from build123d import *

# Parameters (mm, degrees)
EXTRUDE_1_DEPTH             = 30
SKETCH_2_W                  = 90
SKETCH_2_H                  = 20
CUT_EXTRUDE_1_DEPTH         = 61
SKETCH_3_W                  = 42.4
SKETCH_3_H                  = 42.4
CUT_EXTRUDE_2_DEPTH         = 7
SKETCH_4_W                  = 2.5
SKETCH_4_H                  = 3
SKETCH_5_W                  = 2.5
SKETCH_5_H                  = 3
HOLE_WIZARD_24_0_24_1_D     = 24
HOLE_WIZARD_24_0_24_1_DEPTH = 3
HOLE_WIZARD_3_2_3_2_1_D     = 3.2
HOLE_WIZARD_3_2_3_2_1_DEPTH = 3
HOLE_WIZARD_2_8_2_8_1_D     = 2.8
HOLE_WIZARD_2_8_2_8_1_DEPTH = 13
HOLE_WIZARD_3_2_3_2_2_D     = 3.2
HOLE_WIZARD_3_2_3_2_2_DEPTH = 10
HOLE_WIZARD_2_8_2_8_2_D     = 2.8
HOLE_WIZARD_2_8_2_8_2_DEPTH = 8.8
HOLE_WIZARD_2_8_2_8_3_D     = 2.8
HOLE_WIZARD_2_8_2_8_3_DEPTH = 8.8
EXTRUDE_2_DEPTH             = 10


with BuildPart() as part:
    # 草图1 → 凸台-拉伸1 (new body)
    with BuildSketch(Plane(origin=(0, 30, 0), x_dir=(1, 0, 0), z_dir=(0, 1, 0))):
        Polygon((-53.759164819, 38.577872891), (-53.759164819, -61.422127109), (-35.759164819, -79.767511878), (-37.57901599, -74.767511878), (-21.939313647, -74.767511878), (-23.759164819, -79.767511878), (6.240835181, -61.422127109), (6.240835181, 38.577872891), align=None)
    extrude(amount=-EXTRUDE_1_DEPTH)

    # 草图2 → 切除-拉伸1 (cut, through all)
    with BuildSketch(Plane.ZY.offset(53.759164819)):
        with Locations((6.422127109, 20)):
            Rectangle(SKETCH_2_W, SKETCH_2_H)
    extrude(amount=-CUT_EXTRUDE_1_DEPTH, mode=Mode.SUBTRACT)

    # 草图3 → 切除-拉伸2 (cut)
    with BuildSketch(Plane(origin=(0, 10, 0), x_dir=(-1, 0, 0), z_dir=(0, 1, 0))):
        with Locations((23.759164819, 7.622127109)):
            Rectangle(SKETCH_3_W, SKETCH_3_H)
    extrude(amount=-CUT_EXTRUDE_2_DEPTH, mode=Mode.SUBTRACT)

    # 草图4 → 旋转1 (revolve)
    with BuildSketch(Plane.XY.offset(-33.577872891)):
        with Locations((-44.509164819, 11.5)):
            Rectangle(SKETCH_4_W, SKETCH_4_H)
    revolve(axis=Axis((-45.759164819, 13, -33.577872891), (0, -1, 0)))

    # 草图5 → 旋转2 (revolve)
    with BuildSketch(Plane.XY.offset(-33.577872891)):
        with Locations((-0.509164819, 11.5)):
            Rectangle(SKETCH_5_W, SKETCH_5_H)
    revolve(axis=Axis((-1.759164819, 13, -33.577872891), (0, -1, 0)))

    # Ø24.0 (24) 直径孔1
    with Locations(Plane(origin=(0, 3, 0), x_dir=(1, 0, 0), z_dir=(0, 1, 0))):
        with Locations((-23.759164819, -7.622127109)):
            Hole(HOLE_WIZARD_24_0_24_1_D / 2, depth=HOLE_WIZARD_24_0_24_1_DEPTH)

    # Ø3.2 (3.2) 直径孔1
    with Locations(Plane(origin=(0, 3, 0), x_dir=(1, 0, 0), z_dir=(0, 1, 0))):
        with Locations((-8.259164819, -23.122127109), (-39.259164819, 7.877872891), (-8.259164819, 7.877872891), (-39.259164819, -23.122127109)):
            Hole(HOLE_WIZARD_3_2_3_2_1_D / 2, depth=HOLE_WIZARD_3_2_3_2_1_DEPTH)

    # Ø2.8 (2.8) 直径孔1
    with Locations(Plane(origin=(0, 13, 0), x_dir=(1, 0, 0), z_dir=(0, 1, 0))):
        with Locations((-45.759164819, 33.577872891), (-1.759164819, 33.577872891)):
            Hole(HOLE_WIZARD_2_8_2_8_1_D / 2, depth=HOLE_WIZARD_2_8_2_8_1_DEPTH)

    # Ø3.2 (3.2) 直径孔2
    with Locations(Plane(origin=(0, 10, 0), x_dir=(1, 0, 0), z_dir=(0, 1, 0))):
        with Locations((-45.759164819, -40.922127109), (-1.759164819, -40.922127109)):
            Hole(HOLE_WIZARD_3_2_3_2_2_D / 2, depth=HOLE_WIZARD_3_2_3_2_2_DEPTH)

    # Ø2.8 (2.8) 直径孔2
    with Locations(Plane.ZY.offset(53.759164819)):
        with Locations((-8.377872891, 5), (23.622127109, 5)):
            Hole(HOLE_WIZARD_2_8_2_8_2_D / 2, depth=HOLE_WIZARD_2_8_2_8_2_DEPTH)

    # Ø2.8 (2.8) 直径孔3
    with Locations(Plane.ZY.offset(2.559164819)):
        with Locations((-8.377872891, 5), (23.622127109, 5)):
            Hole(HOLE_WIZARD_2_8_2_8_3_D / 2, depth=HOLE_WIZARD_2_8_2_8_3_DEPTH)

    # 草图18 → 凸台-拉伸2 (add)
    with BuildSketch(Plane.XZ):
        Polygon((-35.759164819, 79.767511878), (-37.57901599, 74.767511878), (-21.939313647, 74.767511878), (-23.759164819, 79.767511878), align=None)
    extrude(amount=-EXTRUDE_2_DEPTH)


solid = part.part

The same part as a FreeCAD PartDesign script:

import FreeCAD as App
import Part
import Sketcher
Q = App.Units.Quantity

doc = App.newDocument("Part")
body = doc.addObject("PartDesign::Body", "Body")

# Sketch on XZ plane
sketch1 = body.newObject("Sketcher::SketchObject", "Sketch")
sketch1.AttachmentSupport = (doc.getObject("XZ_Plane"), [""])
sketch1.MapMode = "FlatFace"
sketch1.AttachmentOffset = App.Placement(App.Vector(0, 0, -30), App.Rotation())
sketch1.addGeometry(Part.LineSegment(App.Vector(-54, -39, 0), App.Vector(-54, 61, 0)), False)
sketch1.addGeometry(Part.LineSegment(App.Vector(-54, 61, 0), App.Vector(-36, 80, 0)), False)
sketch1.addGeometry(Part.LineSegment(App.Vector(-36, 80, 0), App.Vector(-38, 75, 0)), False)
sketch1.addGeometry(Part.LineSegment(App.Vector(-38, 75, 0), App.Vector(-22, 75, 0)), False)
sketch1.addGeometry(Part.LineSegment(App.Vector(-22, 75, 0), App.Vector(-24, 80, 0)), False)
sketch1.addGeometry(Part.LineSegment(App.Vector(-24, 80, 0), App.Vector(6, 61, 0)), False)
sketch1.addGeometry(Part.LineSegment(App.Vector(6, 61, 0), App.Vector(6, -39, 0)), False)
sketch1.addGeometry(Part.LineSegment(App.Vector(6, -39, 0), App.Vector(-54, -39, 0)), False)
sketch1.addConstraint(Sketcher.Constraint("Coincident", 0, 2, 1, 1))
sketch1.addConstraint(Sketcher.Constraint("Coincident", 1, 2, 2, 1))
sketch1.addConstraint(Sketcher.Constraint("Coincident", 2, 2, 3, 1))
sketch1.addConstraint(Sketcher.Constraint("Coincident", 3, 2, 4, 1))
sketch1.addConstraint(Sketcher.Constraint("Coincident", 4, 2, 5, 1))
sketch1.addConstraint(Sketcher.Constraint("Coincident", 5, 2, 6, 1))
sketch1.addConstraint(Sketcher.Constraint("Coincident", 6, 2, 7, 1))
sketch1.addConstraint(Sketcher.Constraint("Coincident", 7, 2, 0, 1))
sketch1.addConstraint(Sketcher.Constraint("Vertical", 0))
sketch1.addConstraint(Sketcher.Constraint("Horizontal", 3))
sketch1.addConstraint(Sketcher.Constraint("Vertical", 6))
sketch1.addConstraint(Sketcher.Constraint("Horizontal", 7))
sketch1.addConstraint(Sketcher.Constraint("Horizontal", 1, 2, 4, 2))
sketch1.addConstraint(Sketcher.Constraint("Horizontal", 0, 2, 5, 2))
sketch1.addConstraint(Sketcher.Constraint("Equal", 2, 4))
sketch1.addConstraint(Sketcher.Constraint("DistanceX", 7, 2, 7, 1, 60.0))
sketch1.addConstraint(Sketcher.Constraint("DistanceY", 0, 1, 0, 2, 100.0))
sketch1.addConstraint(Sketcher.Constraint("Angle", 2, Q("-110 deg")))
sketch1.addConstraint(Sketcher.Constraint("DistanceX", 0, 2, 1, 2, 18.0))
sketch1.addConstraint(Sketcher.Constraint("DistanceY", 2, 2, 1, 2, 5.0))
sketch1.addConstraint(Sketcher.Constraint("DistanceX", 1, 2, 4, 2, 12.0))
sketch1.addConstraint(Sketcher.Constraint("Distance", 1, 25.701228))
sketch1.addConstraint(Sketcher.Constraint("DistanceY", -1, 1, 1, 2, 79.767512))
sketch1.addConstraint(Sketcher.Constraint("DistanceX", 0, 2, -1, 1, 53.759165))
pad1 = body.newObject("PartDesign::Pad", "Pad")
pad1.Profile = sketch1
pad1.Length = 30

# Sketch on YZ plane
sketch2 = body.newObject("Sketcher::SketchObject", "Sketch001")
sketch2.AttachmentSupport = (doc.getObject("YZ_Plane"), [""])
sketch2.MapMode = "FlatFace"
sketch2.AttachmentOffset = App.Placement(App.Vector(0, 0, -53.759165), App.Rotation())
sketch2.addGeometry(Part.LineSegment(App.Vector(30, -39, 0), App.Vector(10, -39, 0)), False)
sketch2.addGeometry(Part.LineSegment(App.Vector(10, -39, 0), App.Vector(10, 51, 0)), False)
sketch2.addGeometry(Part.LineSegment(App.Vector(10, 51, 0), App.Vector(30, 51, 0)), False)
sketch2.addGeometry(Part.LineSegment(App.Vector(30, 51, 0), App.Vector(30, -39, 0)), False)
sketch2.addConstraint(Sketcher.Constraint("Coincident", 0, 2, 1, 1))
sketch2.addConstraint(Sketcher.Constraint("Coincident", 1, 2, 2, 1))
sketch2.addConstraint(Sketcher.Constraint("Coincident", 2, 2, 3, 1))
sketch2.addConstraint(Sketcher.Constraint("Coincident", 3, 2, 0, 1))
sketch2.addConstraint(Sketcher.Constraint("Horizontal", 0))
sketch2.addConstraint(Sketcher.Constraint("Vertical", 1))
sketch2.addConstraint(Sketcher.Constraint("Horizontal", 2))
sketch2.addConstraint(Sketcher.Constraint("Vertical", 3))
sketch2.addConstraint(Sketcher.Constraint("DistanceX", 0, 2, 0, 1, 20.0))
sketch2.addConstraint(Sketcher.Constraint("DistanceY", 1, 1, 1, 2, 90.0))
sketch2.addConstraint(Sketcher.Constraint("DistanceX", -1, 1, 0, 2, 10.0))
sketch2.addConstraint(Sketcher.Constraint("DistanceY", 0, 2, -1, 1, 38.577873))
pocket1 = body.newObject("PartDesign::Pocket", "Pocket")
pocket1.Profile = sketch2
pocket1.Type = "ThroughAll"
pocket1.Reversed = True

# Sketch on XZ plane
sketch3 = body.newObject("Sketcher::SketchObject", "Sketch002")
sketch3.AttachmentSupport = (doc.getObject("XZ_Plane"), [""])
sketch3.MapMode = "FlatFace"
sketch3.AttachmentOffset = App.Placement(App.Vector(0, 0, -10), App.Rotation())
sketch3.addGeometry(Part.LineSegment(App.Vector(-3, 29, 0), App.Vector(-3, -14, 0)), False)
sketch3.addGeometry(Part.LineSegment(App.Vector(-3, -14, 0), App.Vector(-45, -14, 0)), False)
sketch3.addGeometry(Part.LineSegment(App.Vector(-45, -14, 0), App.Vector(-45, 29, 0)), False)
sketch3.addGeometry(Part.LineSegment(App.Vector(-45, 29, 0), App.Vector(-3, 29, 0)), False)
sketch3.addConstraint(Sketcher.Constraint("Coincident", 0, 2, 1, 1))
sketch3.addConstraint(Sketcher.Constraint("Coincident", 1, 2, 2, 1))
sketch3.addConstraint(Sketcher.Constraint("Coincident", 2, 2, 3, 1))
sketch3.addConstraint(Sketcher.Constraint("Coincident", 3, 2, 0, 1))
sketch3.addConstraint(Sketcher.Constraint("Vertical", 0))
sketch3.addConstraint(Sketcher.Constraint("Horizontal", 1))
sketch3.addConstraint(Sketcher.Constraint("Vertical", 2))
sketch3.addConstraint(Sketcher.Constraint("Horizontal", 3))
sketch3.addConstraint(Sketcher.Constraint("Equal", 3, 0))
sketch3.addConstraint(Sketcher.Constraint("DistanceX", 1, 2, 1, 1, 42.4))
sketch3.addConstraint(Sketcher.Constraint("DistanceX", 0, 2, -1, 1, 2.559165))
sketch3.addConstraint(Sketcher.Constraint("DistanceY", 0, 2, -1, 1, 13.577873))
pocket2 = body.newObject("PartDesign::Pocket", "Pocket001")
pocket2.Profile = sketch3
pocket2.Length = 7
pocket2.Reversed = True

# Sketch on XY plane
sketch4 = body.newObject("Sketcher::SketchObject", "Sketch003")
sketch4.AttachmentSupport = (doc.getObject("XY_Plane"), [""])
sketch4.MapMode = "FlatFace"
sketch4.AttachmentOffset = App.Placement(App.Vector(0, 0, -33.577873), App.Rotation())
sketch4.addGeometry(Part.LineSegment(App.Vector(-45.8, 13, 0), App.Vector(-45.8, 10, 0)), False)
sketch4.addGeometry(Part.LineSegment(App.Vector(-45.8, 10, 0), App.Vector(-43.3, 10, 0)), False)
sketch4.addGeometry(Part.LineSegment(App.Vector(-43.3, 10, 0), App.Vector(-43.3, 13, 0)), False)
sketch4.addGeometry(Part.LineSegment(App.Vector(-43.3, 13, 0), App.Vector(-45.8, 13, 0)), False)
sketch4.addGeometry(Part.LineSegment(App.Vector(-45.8, 13, 0), App.Vector(-45.8, 10, 0)), True)  # axis
sketch4.addConstraint(Sketcher.Constraint("Coincident", 0, 2, 1, 1))
sketch4.addConstraint(Sketcher.Constraint("Coincident", 1, 2, 2, 1))
sketch4.addConstraint(Sketcher.Constraint("Coincident", 2, 2, 3, 1))
sketch4.addConstraint(Sketcher.Constraint("Coincident", 3, 2, 0, 1))
sketch4.addConstraint(Sketcher.Constraint("Vertical", 0))
sketch4.addConstraint(Sketcher.Constraint("Horizontal", 1))
sketch4.addConstraint(Sketcher.Constraint("Vertical", 2))
sketch4.addConstraint(Sketcher.Constraint("Horizontal", 3))
sketch4.addConstraint(Sketcher.Constraint("Vertical", 4))
sketch4.addConstraint(Sketcher.Constraint("Coincident", 4, 1, 3, 2))
sketch4.addConstraint(Sketcher.Constraint("Horizontal", 1, 2, 4, 2))
sketch4.addConstraint(Sketcher.Constraint("DistanceY", 0, 2, 0, 1, 3.0))
sketch4.addConstraint(Sketcher.Constraint("DistanceX", 1, 1, 1, 2, 2.5))
sketch4.addConstraint(Sketcher.Constraint("DistanceY", -1, 1, 0, 2, 10.0))
sketch4.addConstraint(Sketcher.Constraint("DistanceX", 0, 2, -1, 1, 45.759165))
revolution = body.newObject("PartDesign::Revolution", "Revolution")
revolution.Profile = sketch4
revolution.ReferenceAxis = (sketch4, ["Axis0"])
revolution.Angle = 360

# Sketch on XY plane
sketch5 = body.newObject("Sketcher::SketchObject", "Sketch004")
sketch5.AttachmentSupport = (doc.getObject("XY_Plane"), [""])
sketch5.MapMode = "FlatFace"
sketch5.AttachmentOffset = App.Placement(App.Vector(0, 0, -33.577873), App.Rotation())
sketch5.addGeometry(Part.LineSegment(App.Vector(-1.8, 13, 0), App.Vector(-1.8, 10, 0)), False)
sketch5.addGeometry(Part.LineSegment(App.Vector(-1.8, 10, 0), App.Vector(0.7, 10, 0)), False)
sketch5.addGeometry(Part.LineSegment(App.Vector(0.7, 10, 0), App.Vector(0.7, 13, 0)), False)
sketch5.addGeometry(Part.LineSegment(App.Vector(0.7, 13, 0), App.Vector(-1.8, 13, 0)), False)
sketch5.addGeometry(Part.LineSegment(App.Vector(-1.8, 13, 0), App.Vector(-1.8, 10, 0)), True)  # axis
sketch5.addConstraint(Sketcher.Constraint("Coincident", 0, 2, 1, 1))
sketch5.addConstraint(Sketcher.Constraint("Coincident", 1, 2, 2, 1))
sketch5.addConstraint(Sketcher.Constraint("Coincident", 2, 2, 3, 1))
sketch5.addConstraint(Sketcher.Constraint("Coincident", 3, 2, 0, 1))
sketch5.addConstraint(Sketcher.Constraint("Vertical", 0))
sketch5.addConstraint(Sketcher.Constraint("Horizontal", 1))
sketch5.addConstraint(Sketcher.Constraint("Vertical", 2))
sketch5.addConstraint(Sketcher.Constraint("Horizontal", 3))
sketch5.addConstraint(Sketcher.Constraint("Vertical", 4))
sketch5.addConstraint(Sketcher.Constraint("Coincident", 4, 1, 3, 2))
sketch5.addConstraint(Sketcher.Constraint("Horizontal", 1, 2, 4, 2))
sketch5.addConstraint(Sketcher.Constraint("DistanceY", 0, 2, 0, 1, 3.0))
sketch5.addConstraint(Sketcher.Constraint("DistanceX", 1, 1, 1, 2, 2.5))
sketch5.addConstraint(Sketcher.Constraint("DistanceY", -1, 1, 0, 2, 10.0))
sketch5.addConstraint(Sketcher.Constraint("DistanceX", 0, 2, -1, 1, 1.759165))
revolution2 = body.newObject("PartDesign::Revolution", "Revolution001")
revolution2.Profile = sketch5
revolution2.ReferenceAxis = (sketch5, ["Axis0"])
revolution2.Angle = 360

# Sketch on XZ plane
sketch6 = body.newObject("Sketcher::SketchObject", "Sketch005")
sketch6.AttachmentSupport = (doc.getObject("XZ_Plane"), [""])
sketch6.MapMode = "FlatFace"
sketch6.AttachmentOffset = App.Placement(App.Vector(0, 0, -3), App.Rotation())
sketch6.addGeometry(Part.Circle(App.Vector(-24, 8, 0), App.Vector(0, 0, 1), 12), False)
sketch6.addConstraint(Sketcher.Constraint("Diameter", 0, 24.0))
sketch6.addConstraint(Sketcher.Constraint("DistanceX", 0, 3, -1, 1, 23.759165))
sketch6.addConstraint(Sketcher.Constraint("DistanceY", -1, 1, 0, 3, 7.622127))
doc.recompute()
hole = body.newObject("PartDesign::Hole", "Hole")
hole.Profile = sketch6
hole.ThreadType = "None"
hole.Diameter = 24
hole.DepthType = "Dimension"
hole.Depth = 3
hole.DrillPoint = "Flat"
hole.Reversed = True

# Sketch on XZ plane
sketch7 = body.newObject("Sketcher::SketchObject", "Sketch006")
sketch7.AttachmentSupport = (doc.getObject("XZ_Plane"), [""])
sketch7.MapMode = "FlatFace"
sketch7.AttachmentOffset = App.Placement(App.Vector(0, 0, -3), App.Rotation())
sketch7.addGeometry(Part.Circle(App.Vector(-8.3, 23.1, 0), App.Vector(0, 0, 1), 1.6), False)
sketch7.addGeometry(Part.Circle(App.Vector(-39.3, -7.9, 0), App.Vector(0, 0, 1), 1.6), False)
sketch7.addGeometry(Part.Circle(App.Vector(-8.3, -7.9, 0), App.Vector(0, 0, 1), 1.6), False)
sketch7.addGeometry(Part.Circle(App.Vector(-39.3, 23.1, 0), App.Vector(0, 0, 1), 1.6), False)
sketch7.addConstraint(Sketcher.Constraint("Equal", 0, 1))
sketch7.addConstraint(Sketcher.Constraint("Equal", 1, 2))
sketch7.addConstraint(Sketcher.Constraint("Equal", 2, 3))
sketch7.addConstraint(Sketcher.Constraint("Horizontal", 1, 3, 2, 3))
sketch7.addConstraint(Sketcher.Constraint("Horizontal", 0, 3, 3, 3))
sketch7.addConstraint(Sketcher.Constraint("Vertical", 0, 3, 2, 3))
sketch7.addConstraint(Sketcher.Constraint("Vertical", 1, 3, 3, 3))
sketch7.addConstraint(Sketcher.Constraint("Diameter", 0, 3.2))
sketch7.addConstraint(Sketcher.Constraint("DistanceX", 1, 3, 0, 3, 31.0))
sketch7.addConstraint(Sketcher.Constraint("DistanceY", 1, 3, 0, 3, 31.0))
sketch7.addConstraint(Sketcher.Constraint("DistanceX", 0, 3, -1, 1, 8.259165))
sketch7.addConstraint(Sketcher.Constraint("DistanceY", -1, 1, 0, 3, 23.122127))
doc.recompute()
hole2 = body.newObject("PartDesign::Hole", "Hole001")
hole2.Profile = sketch7
hole2.ThreadType = "None"
hole2.Diameter = 3.2
hole2.DepthType = "Dimension"
hole2.Depth = 3
hole2.DrillPoint = "Flat"
hole2.Reversed = True

# Sketch on XZ plane
sketch8 = body.newObject("Sketcher::SketchObject", "Sketch007")
sketch8.AttachmentSupport = (doc.getObject("XZ_Plane"), [""])
sketch8.MapMode = "FlatFace"
sketch8.AttachmentOffset = App.Placement(App.Vector(0, 0, -13), App.Rotation())
sketch8.addGeometry(Part.Circle(App.Vector(-45.8, -33.6, 0), App.Vector(0, 0, 1), 1.4), False)
sketch8.addGeometry(Part.Circle(App.Vector(-1.8, -33.6, 0), App.Vector(0, 0, 1), 1.4), False)
sketch8.addConstraint(Sketcher.Constraint("Equal", 0, 1))
sketch8.addConstraint(Sketcher.Constraint("Horizontal", 0, 3, 1, 3))
sketch8.addConstraint(Sketcher.Constraint("Diameter", 0, 2.8))
sketch8.addConstraint(Sketcher.Constraint("DistanceX", 0, 3, 1, 3, 44.0))
sketch8.addConstraint(Sketcher.Constraint("DistanceX", 0, 3, -1, 1, 45.759165))
sketch8.addConstraint(Sketcher.Constraint("DistanceY", 0, 3, -1, 1, 33.577873))
doc.recompute()
hole3 = body.newObject("PartDesign::Hole", "Hole002")
hole3.Profile = sketch8
hole3.ThreadType = "None"
hole3.Diameter = 2.8
hole3.DepthType = "Dimension"
hole3.Depth = 13
hole3.DrillPoint = "Flat"
hole3.Reversed = True

# Sketch on XZ plane
sketch9 = body.newObject("Sketcher::SketchObject", "Sketch008")
sketch9.AttachmentSupport = (doc.getObject("XZ_Plane"), [""])
sketch9.MapMode = "FlatFace"
sketch9.AttachmentOffset = App.Placement(App.Vector(0, 0, -10), App.Rotation())
sketch9.addGeometry(Part.Circle(App.Vector(-45.8, 40.9, 0), App.Vector(0, 0, 1), 1.6), False)
sketch9.addGeometry(Part.Circle(App.Vector(-1.8, 40.9, 0), App.Vector(0, 0, 1), 1.6), False)
sketch9.addConstraint(Sketcher.Constraint("Equal", 0, 1))
sketch9.addConstraint(Sketcher.Constraint("Horizontal", 0, 3, 1, 3))
sketch9.addConstraint(Sketcher.Constraint("Diameter", 0, 3.2))
sketch9.addConstraint(Sketcher.Constraint("DistanceX", 0, 3, 1, 3, 44.0))
sketch9.addConstraint(Sketcher.Constraint("DistanceX", 0, 3, -1, 1, 45.759165))
sketch9.addConstraint(Sketcher.Constraint("DistanceY", -1, 1, 0, 3, 40.922127))
doc.recompute()
hole4 = body.newObject("PartDesign::Hole", "Hole003")
hole4.Profile = sketch9
hole4.ThreadType = "None"
hole4.Diameter = 3.2
hole4.DepthType = "Dimension"
hole4.Depth = 10
hole4.DrillPoint = "Flat"
hole4.Reversed = True

# Sketch on YZ plane
sketch10 = body.newObject("Sketcher::SketchObject", "Sketch009")
sketch10.AttachmentSupport = (doc.getObject("YZ_Plane"), [""])
sketch10.MapMode = "FlatFace"
sketch10.AttachmentOffset = App.Placement(App.Vector(0, 0, -53.759165), App.Rotation())
sketch10.addGeometry(Part.Circle(App.Vector(5, -8.4, 0), App.Vector(0, 0, 1), 1.4), False)
sketch10.addGeometry(Part.Circle(App.Vector(5, 23.6, 0), App.Vector(0, 0, 1), 1.4), False)
sketch10.addConstraint(Sketcher.Constraint("Equal", 0, 1))
sketch10.addConstraint(Sketcher.Constraint("Vertical", 0, 3, 1, 3))
sketch10.addConstraint(Sketcher.Constraint("Diameter", 0, 2.8))
sketch10.addConstraint(Sketcher.Constraint("DistanceX", -1, 1, 0, 3, 5.0))
sketch10.addConstraint(Sketcher.Constraint("DistanceY", 0, 3, 1, 3, 32.0))
sketch10.addConstraint(Sketcher.Constraint("DistanceY", 0, 3, -1, 1, 8.377873))
doc.recompute()
hole5 = body.newObject("PartDesign::Hole", "Hole004")
hole5.Profile = sketch10
hole5.ThreadType = "None"
hole5.Diameter = 2.8
hole5.DepthType = "Dimension"
hole5.Depth = 8.8
hole5.DrillPoint = "Flat"
hole5.Reversed = True

# Sketch on YZ plane
sketch11 = body.newObject("Sketcher::SketchObject", "Sketch010")
sketch11.AttachmentSupport = (doc.getObject("YZ_Plane"), [""])
sketch11.MapMode = "FlatFace"
sketch11.AttachmentOffset = App.Placement(App.Vector(0, 0, -2.559165), App.Rotation())
sketch11.addGeometry(Part.Circle(App.Vector(5, -8.4, 0), App.Vector(0, 0, 1), 1.4), False)
sketch11.addGeometry(Part.Circle(App.Vector(5, 23.6, 0), App.Vector(0, 0, 1), 1.4), False)
sketch11.addConstraint(Sketcher.Constraint("Equal", 0, 1))
sketch11.addConstraint(Sketcher.Constraint("Vertical", 0, 3, 1, 3))
sketch11.addConstraint(Sketcher.Constraint("Diameter", 0, 2.8))
sketch11.addConstraint(Sketcher.Constraint("DistanceX", -1, 1, 0, 3, 5.0))
sketch11.addConstraint(Sketcher.Constraint("DistanceY", 0, 3, 1, 3, 32.0))
sketch11.addConstraint(Sketcher.Constraint("DistanceY", 0, 3, -1, 1, 8.377873))
doc.recompute()
hole6 = body.newObject("PartDesign::Hole", "Hole005")
hole6.Profile = sketch11
hole6.ThreadType = "None"
hole6.Diameter = 2.8
hole6.DepthType = "Dimension"
hole6.Depth = 8.8
hole6.DrillPoint = "Flat"
hole6.Reversed = True

# Sketch on XZ plane
sketch12 = body.newObject("Sketcher::SketchObject", "Sketch011")
sketch12.AttachmentSupport = (doc.getObject("XZ_Plane"), [""])
sketch12.MapMode = "FlatFace"
sketch12.addGeometry(Part.LineSegment(App.Vector(-36, 80, 0), App.Vector(-38, 75, 0)), False)
sketch12.addGeometry(Part.LineSegment(App.Vector(-38, 75, 0), App.Vector(-22, 75, 0)), False)
sketch12.addGeometry(Part.LineSegment(App.Vector(-22, 75, 0), App.Vector(-24, 80, 0)), False)
sketch12.addGeometry(Part.LineSegment(App.Vector(-24, 80, 0), App.Vector(-36, 80, 0)), False)
sketch12.addConstraint(Sketcher.Constraint("Coincident", 0, 2, 1, 1))
sketch12.addConstraint(Sketcher.Constraint("Coincident", 1, 2, 2, 1))
sketch12.addConstraint(Sketcher.Constraint("Coincident", 2, 2, 3, 1))
sketch12.addConstraint(Sketcher.Constraint("Coincident", 3, 2, 0, 1))
sketch12.addConstraint(Sketcher.Constraint("Horizontal", 1))
sketch12.addConstraint(Sketcher.Constraint("Horizontal", 3))
sketch12.addConstraint(Sketcher.Constraint("Equal", 0, 2))
sketch12.addConstraint(Sketcher.Constraint("DistanceX", 3, 2, 3, 1, 12.0))
sketch12.addConstraint(Sketcher.Constraint("Angle", 0, Q("-110 deg")))
sketch12.addConstraint(Sketcher.Constraint("DistanceY", 1, 2, 2, 2, 5.0))
sketch12.addConstraint(Sketcher.Constraint("DistanceY", -1, 1, 0, 2, 74.767512))
sketch12.addConstraint(Sketcher.Constraint("DistanceX", 0, 2, -1, 1, 37.579016))
pad2 = body.newObject("PartDesign::Pad", "Pad001")
pad2.Profile = sketch12
pad2.Length = 10
pad2.Reversed = True

doc.recompute()
